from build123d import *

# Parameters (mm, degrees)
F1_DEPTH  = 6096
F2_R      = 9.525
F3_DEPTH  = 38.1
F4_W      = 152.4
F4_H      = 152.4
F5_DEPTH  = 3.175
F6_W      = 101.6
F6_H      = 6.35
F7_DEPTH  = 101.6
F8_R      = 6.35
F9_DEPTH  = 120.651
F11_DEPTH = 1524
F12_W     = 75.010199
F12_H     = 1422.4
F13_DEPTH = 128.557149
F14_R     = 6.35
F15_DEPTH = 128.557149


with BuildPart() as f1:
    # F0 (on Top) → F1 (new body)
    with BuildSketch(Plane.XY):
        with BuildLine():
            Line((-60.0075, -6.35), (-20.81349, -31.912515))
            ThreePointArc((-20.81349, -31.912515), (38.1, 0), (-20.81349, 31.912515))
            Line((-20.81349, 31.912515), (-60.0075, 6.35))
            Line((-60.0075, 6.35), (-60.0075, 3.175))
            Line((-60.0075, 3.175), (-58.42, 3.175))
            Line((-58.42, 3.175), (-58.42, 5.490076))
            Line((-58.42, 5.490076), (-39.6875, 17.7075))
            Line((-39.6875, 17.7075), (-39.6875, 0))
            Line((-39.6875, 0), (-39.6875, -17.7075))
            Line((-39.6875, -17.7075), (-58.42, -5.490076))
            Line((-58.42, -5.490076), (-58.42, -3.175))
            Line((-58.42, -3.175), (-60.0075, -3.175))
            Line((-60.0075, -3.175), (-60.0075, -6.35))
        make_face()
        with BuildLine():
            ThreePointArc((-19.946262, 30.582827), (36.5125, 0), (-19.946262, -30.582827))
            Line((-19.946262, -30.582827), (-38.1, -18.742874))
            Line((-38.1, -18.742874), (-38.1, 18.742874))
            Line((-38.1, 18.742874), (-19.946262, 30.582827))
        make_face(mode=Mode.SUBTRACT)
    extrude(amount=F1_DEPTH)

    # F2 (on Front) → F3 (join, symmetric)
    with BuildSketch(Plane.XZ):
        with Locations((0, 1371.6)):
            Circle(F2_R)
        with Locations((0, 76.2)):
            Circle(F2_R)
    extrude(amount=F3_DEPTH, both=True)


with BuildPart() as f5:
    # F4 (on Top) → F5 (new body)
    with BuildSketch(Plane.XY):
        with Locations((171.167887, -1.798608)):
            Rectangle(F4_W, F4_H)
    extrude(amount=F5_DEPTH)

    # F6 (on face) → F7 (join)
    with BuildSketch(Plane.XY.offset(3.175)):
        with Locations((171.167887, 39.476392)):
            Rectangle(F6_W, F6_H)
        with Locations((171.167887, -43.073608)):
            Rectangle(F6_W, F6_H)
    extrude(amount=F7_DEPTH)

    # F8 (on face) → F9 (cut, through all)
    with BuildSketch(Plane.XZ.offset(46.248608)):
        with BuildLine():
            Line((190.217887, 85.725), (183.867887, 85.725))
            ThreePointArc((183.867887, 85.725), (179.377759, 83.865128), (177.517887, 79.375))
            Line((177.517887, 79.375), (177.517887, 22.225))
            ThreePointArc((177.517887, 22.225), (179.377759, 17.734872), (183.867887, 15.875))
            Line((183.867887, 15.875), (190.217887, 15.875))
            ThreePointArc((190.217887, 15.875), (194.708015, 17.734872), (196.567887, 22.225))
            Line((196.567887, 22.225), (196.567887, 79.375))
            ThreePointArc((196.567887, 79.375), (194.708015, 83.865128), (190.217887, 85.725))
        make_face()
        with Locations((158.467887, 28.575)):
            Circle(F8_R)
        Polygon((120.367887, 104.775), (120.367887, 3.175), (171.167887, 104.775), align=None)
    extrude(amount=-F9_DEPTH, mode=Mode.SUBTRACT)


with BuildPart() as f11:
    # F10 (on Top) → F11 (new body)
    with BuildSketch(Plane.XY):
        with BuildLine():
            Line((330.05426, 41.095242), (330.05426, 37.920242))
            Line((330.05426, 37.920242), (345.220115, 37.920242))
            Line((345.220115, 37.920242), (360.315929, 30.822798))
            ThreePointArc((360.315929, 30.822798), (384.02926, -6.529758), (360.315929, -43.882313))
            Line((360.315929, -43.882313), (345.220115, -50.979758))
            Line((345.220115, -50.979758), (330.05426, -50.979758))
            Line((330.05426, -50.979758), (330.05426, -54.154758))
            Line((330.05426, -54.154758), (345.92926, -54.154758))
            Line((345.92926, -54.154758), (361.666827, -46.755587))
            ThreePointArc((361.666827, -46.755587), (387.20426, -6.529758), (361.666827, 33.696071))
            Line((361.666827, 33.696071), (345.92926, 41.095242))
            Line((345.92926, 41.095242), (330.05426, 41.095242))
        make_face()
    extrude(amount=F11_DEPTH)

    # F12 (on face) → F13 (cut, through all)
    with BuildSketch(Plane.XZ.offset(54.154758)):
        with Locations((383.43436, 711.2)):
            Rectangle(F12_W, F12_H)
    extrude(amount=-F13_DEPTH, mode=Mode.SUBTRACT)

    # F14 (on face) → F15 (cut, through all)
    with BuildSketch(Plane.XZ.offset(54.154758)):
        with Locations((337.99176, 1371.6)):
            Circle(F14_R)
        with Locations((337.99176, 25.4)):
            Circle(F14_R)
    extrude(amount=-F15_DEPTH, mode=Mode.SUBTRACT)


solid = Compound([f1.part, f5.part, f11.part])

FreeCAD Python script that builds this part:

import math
import FreeCAD as App
import Part
import Sketcher

V = App.Vector
Q = App.Units.Quantity

doc = App.newDocument("Part")
body = doc.addObject("PartDesign::Body", "Body")

# Sketch on XY plane
sketch1 = doc.addObject("Sketcher::SketchObject", "Sketch")
body.addObject(sketch1)
sketch1.AttachmentSupport = (doc.XY_Plane, [""])
sketch1.MapMode = "FlatFace"
sketch1.addGeometry([
    Part.LineSegment(V(-60, -6.3, 0), V(-20.8, -31.9, 0)),  # 0
    Part.ArcOfCircle(Part.Circle(V(0, 0, 0), V(0, 0, 1), 38.1), math.radians(-123), math.radians(123)),  # 1
    Part.LineSegment(V(-20.8, 31.9, 0), V(-60, 6.3, 0)),  # 2
    Part.LineSegment(V(-60, 6.3, 0), V(-60, 3.2, 0)),  # 3
    Part.LineSegment(V(-60, 3.2, 0), V(-58.4, 3.2, 0)),  # 4
    Part.LineSegment(V(-58.4, 3.2, 0), V(-58.4, 5.5, 0)),  # 5
    Part.LineSegment(V(-58.4, 5.5, 0), V(-39.7, 17.7, 0)),  # 6
    Part.LineSegment(V(-39.7, 17.7, 0), V(-39.7, -17.7, 0)),  # 7
    Part.LineSegment(V(-39.7, -17.7, 0), V(-58.4, -5.5, 0)),  # 8
    Part.LineSegment(V(-58.4, -5.5, 0), V(-58.4, -3.2, 0)),  # 9
    Part.LineSegment(V(-58.4, -3.2, 0), V(-60, -3.2, 0)),  # 10
    Part.LineSegment(V(-60, -3.2, 0), V(-60, -6.3, 0)),  # 11
    Part.LineSegment(V(-38.1, 18.7, 0), V(-19.9, 30.6, 0)),  # 12
    Part.ArcOfCircle(Part.Circle(V(0, 0, 0), V(0, 0, 1), 36.5), math.radians(-123), math.radians(123)),  # 13
    Part.LineSegment(V(-19.9, -30.6, 0), V(-38.1, -18.7, 0)),  # 14
    Part.LineSegment(V(-38.1, -18.7, 0), V(-38.1, 18.7, 0)),  # 15
], False)
sketch1.addConstraint([
    Sketcher.Constraint("Tangent", 0, 2, 1, 1),
    Sketcher.Constraint("Tangent", 1, 2, 2, 1),
    Sketcher.Constraint("Coincident", 2, 2, 3, 1),
    Sketcher.Constraint("Coincident", 3, 2, 4, 1),
    Sketcher.Constraint("Coincident", 4, 2, 5, 1),
    Sketcher.Constraint("Coincident", 5, 2, 6, 1),
    Sketcher.Constraint("Coincident", 6, 2, 7, 1),
    Sketcher.Constraint("Coincident", 7, 2, 8, 1),
    Sketcher.Constraint("Coincident", 8, 2, 9, 1),
    Sketcher.Constraint("Coincident", 9, 2, 10, 1),
    Sketcher.Constraint("Coincident", 10, 2, 11, 1),
    Sketcher.Constraint("Coincident", 11, 2, 0, 1),
    Sketcher.Constraint("Tangent", 12, 2, 13, 2),
    Sketcher.Constraint("Tangent", 13, 1, 14, 1),
    Sketcher.Constraint("Coincident", 14, 2, 15, 1),
    Sketcher.Constraint("Coincident", 15, 2, 12, 1),
    Sketcher.Constraint("Vertical", 3),
    Sketcher.Constraint("Horizontal", 4),
    Sketcher.Constraint("Vertical", 5),
    Sketcher.Constraint("Vertical", 7),
    Sketcher.Constraint("Vertical", 9),
    Sketcher.Constraint("Horizontal", 10),
    Sketcher.Constraint("Vertical", 11),
    Sketcher.Constraint("Vertical", 15),
    Sketcher.Constraint("Coincident", 1, 3, -1, 1),
    Sketcher.Constraint("Coincident", 13, 3, -1, 1),
    Sketcher.Constraint("Symmetric", 5, 2, 8, 2, -1),
    Sketcher.Constraint("Symmetric", 3, 2, 10, 2, -1),
    Sketcher.Constraint("Parallel", 2, 6),
    Sketcher.Constraint("Parallel", 0, 8),
    Sketcher.Constraint("Parallel", 6, 12),
    Sketcher.Constraint("Parallel", 8, 14),
    Sketcher.Constraint("Vertical", 0, 2, 1, 2),
    Sketcher.Constraint("Radius", 1, Q("1.5 in")),
    Sketcher.Constraint("Radius", 13, Q("1.4375 in")),
    Sketcher.Constraint("DistanceX", 4, 2, -1, 1, Q("2.3 in")),
    Sketcher.Constraint("DistanceX", 14, 2, -1, 1, Q("1.5 in")),
    Sketcher.Constraint("DistanceX", 2, 2, 6, 2, Q("0.8 in")),
    Sketcher.Constraint("DistanceX", 4, 1, 4, 2, Q("0.0625 in")),
    Sketcher.Constraint("DistanceY", 3, 2, 3, 1, Q("0.125 in")),
    Sketcher.Constraint("DistanceY", -1, 1, 2, 2, Q("0.25 in")),
    Sketcher.Constraint("DistanceY", 7, 2, 7, 1, 35.415),
])
pad1 = doc.addObject("PartDesign::Pad", "Pad")
body.addObject(pad1)
pad1.Profile = sketch1
pad1.Length = Q("240 in")

# Sketch on XZ plane
sketch2 = doc.addObject("Sketcher::SketchObject", "Sketch001")
body.addObject(sketch2)
sketch2.AttachmentSupport = (doc.XZ_Plane, [""])
sketch2.MapMode = "FlatFace"
sketch2.addGeometry([
    Part.Circle(V(0, 1372, 0), V(0, 0, 1), 10),
    Part.Circle(V(0, 76, 0), V(0, 0, 1), 10),
], False)
sketch2.addConstraint([
    Sketcher.Constraint("Equal", 0, 1),
    Sketcher.Constraint("PointOnObject", 0, 3, -2),
    Sketcher.Constraint("PointOnObject", 1, 3, -2),
    Sketcher.Constraint("Diameter", 0, Q("0.75 in")),
    Sketcher.Constraint("DistanceY", -1, 1, 0, 3, Q("54 in")),
    Sketcher.Constraint("DistanceY", -1, 1, 1, 3, Q("3 in")),
])
pad2 = doc.addObject("PartDesign::Pad", "Pad001")
body.addObject(pad2)
pad2.Profile = sketch2
pad2.Length = Q("3 in")
pad2.Midplane = True
body2 = doc.addObject("PartDesign::Body", "Body001")

# Sketch on XY plane
sketch3 = doc.addObject("Sketcher::SketchObject", "Sketch002")
body2.addObject(sketch3)
sketch3.AttachmentSupport = (doc.getObject("XY_Plane001"), [""])
sketch3.MapMode = "FlatFace"
sketch3.addGeometry([
    Part.LineSegment(V(95, 74, 0), V(95, -78, 0)),
    Part.LineSegment(V(95, -78, 0), V(247, -78, 0)),
    Part.LineSegment(V(247, -78, 0), V(247, 74, 0)),
    Part.LineSegment(V(247, 74, 0), V(95, 74, 0)),
], False)
sketch3.addConstraint([
    Sketcher.Constraint("Coincident", 0, 2, 1, 1),
    Sketcher.Constraint("Coincident", 1, 2, 2, 1),
    Sketcher.Constraint("Coincident", 2, 2, 3, 1),
    Sketcher.Constraint("Coincident", 3, 2, 0, 1),
    Sketcher.Constraint("Vertical", 0),
    Sketcher.Constraint("Horizontal", 1),
    Sketcher.Constraint("Vertical", 2),
    Sketcher.Constraint("Horizontal", 3),
    Sketcher.Constraint("Equal", 3, 0),
    Sketcher.Constraint("DistanceX", 1, 1, 1, 2, Q("6 in")),
    Sketcher.Constraint("DistanceY", 0, 2, -1, 1, 77.998608),
    Sketcher.Constraint("DistanceX", -1, 1, 0, 2, 94.967887),
])
pad3 = doc.addObject("PartDesign::Pad", "Pad002")
body2.addObject(pad3)
pad3.Profile = sketch3
pad3.Length = Q("0.125 in")

# Sketch on XY plane
sketch4 = doc.addObject("Sketcher::SketchObject", "Sketch003")
body2.addObject(sketch4)
sketch4.AttachmentSupport = (doc.getObject("XY_Plane001"), [""])
sketch4.MapMode = "FlatFace"
sketch4.AttachmentOffset = App.Placement(V(0, 0, 0.125 * 25.4), App.Rotation())
sketch4.addGeometry([
    Part.LineSegment(V(120, 43, 0), V(120, 36, 0)),  # 0
    Part.LineSegment(V(120, 36, 0), V(222, 36, 0)),  # 1
    Part.LineSegment(V(222, 36, 0), V(222, 43, 0)),  # 2
    Part.LineSegment(V(222, 43, 0), V(120, 43, 0)),  # 3
    Part.LineSegment(V(120, -40, 0), V(120, -46, 0)),  # 4
    Part.LineSegment(V(120, -46, 0), V(222, -46, 0)),  # 5
    Part.LineSegment(V(222, -46, 0), V(222, -40, 0)),  # 6
    Part.LineSegment(V(222, -40, 0), V(120, -40, 0)),  # 7
], False)
sketch4.addConstraint([
    Sketcher.Constraint("Coincident", 0, 2, 1, 1),
    Sketcher.Constraint("Coincident", 1, 2, 2, 1),
    Sketcher.Constraint("Coincident", 2, 2, 3, 1),
    Sketcher.Constraint("Coincident", 3, 2, 0, 1),
    Sketcher.Constraint("Coincident", 4, 2, 5, 1),
    Sketcher.Constraint("Coincident", 5, 2, 6, 1),
    Sketcher.Constraint("Coincident", 6, 2, 7, 1),
    Sketcher.Constraint("Coincident", 7, 2, 4, 1),
    Sketcher.Constraint("Vertical", 0),
    Sketcher.Constraint("Horizontal", 1),
    Sketcher.Constraint("Vertical", 2),
    Sketcher.Constraint("Horizontal", 3),
    Sketcher.Constraint("Vertical", 4),
    Sketcher.Constraint("Horizontal", 5),
    Sketcher.Constraint("Vertical", 6),
    Sketcher.Constraint("Horizontal", 7),
    Sketcher.Constraint("Vertical", 3, 2, 4, 2),
    Sketcher.Constraint("Vertical", 2, 2, 5, 2),
    Sketcher.Constraint("Equal", 2, 4),
    Sketcher.Constraint("DistanceX", 1, 1, 1, 2, Q("4 in")),
    Sketcher.Constraint("DistanceY", 6, 2, 1, 2, Q("3 in")),
    Sketcher.Constraint("DistanceY", 0, 2, 0, 1, Q("0.25 in")),
    Sketcher.Constraint("DistanceY", 6, 2, -1, 1, 39.898608),
    Sketcher.Constraint("DistanceX", -1, 1, 0, 2, 120.367887),
])
pad4 = doc.addObject("PartDesign::Pad", "Pad003")
body2.addObject(pad4)
pad4.Profile = sketch4
pad4.Length = Q("4 in")

# Sketch on XZ plane
sketch5 = doc.addObject("Sketcher::SketchObject", "Sketch004")
body2.addObject(sketch5)
sketch5.AttachmentSupport = (doc.getObject("XZ_Plane001"), [""])
sketch5.MapMode = "FlatFace"
sketch5.AttachmentOffset = App.Placement(V(0, 0, 46.248608), App.Rotation())
sketch5.addGeometry([
    Part.LineSegment(V(190, 86, 0), V(184, 86, 0)),  # 0
    Part.ArcOfCircle(Part.Circle(V(184, 79, 0), V(0, 0, 1), 6), math.radians(90), math.radians(180)),  # 1
    Part.LineSegment(V(178, 79, 0), V(178, 22, 0)),  # 2
    Part.ArcOfCircle(Part.Circle(V(184, 22, 0), V(0, 0, 1), 6), math.radians(-180), math.radians(-90)),  # 3
    Part.LineSegment(V(184, 16, 0), V(190, 16, 0)),  # 4
    Part.ArcOfCircle(Part.Circle(V(190, 22, 0), V(0, 0, 1), 6), math.radians(-90), math.radians(0)),  # 5
    Part.LineSegment(V(197, 22, 0), V(197, 79, 0)),  # 6
    Part.ArcOfCircle(Part.Circle(V(190, 79, 0), V(0, 0, 1), 6), math.radians(0), math.radians(90)),  # 7
    Part.Circle(V(158, 29, 0), V(0, 0, 1), 6),  # 8
    Part.LineSegment(V(120, 105, 0), V(120, 3, 0)),  # 9
    Part.LineSegment(V(120, 3, 0), V(171, 105, 0)),  # 10
    Part.LineSegment(V(171, 105, 0), V(120, 105, 0)),  # 11
], False)
sketch5.addConstraint([
    Sketcher.Constraint("Tangent", 0, 2, 1, 1),
    Sketcher.Constraint("Tangent", 1, 2, 2, 1),
    Sketcher.Constraint("Tangent", 2, 2, 3, 1),
    Sketcher.Constraint("Tangent", 3, 2, 4, 1),
    Sketcher.Constraint("Tangent", 4, 2, 5, 1),
    Sketcher.Constraint("Tangent", 5, 2, 6, 1),
    Sketcher.Constraint("Tangent", 6, 2, 7, 1),
    Sketcher.Constraint("Tangent", 7, 2, 0, 1),
    Sketcher.Constraint("Coincident", 9, 2, 10, 1),
    Sketcher.Constraint("Coincident", 10, 2, 11, 1),
    Sketcher.Constraint("Coincident", 11, 2, 9, 1),
    Sketcher.Constraint("Horizontal", 0),
    Sketcher.Constraint("Vertical", 2),
    Sketcher.Constraint("Horizontal", 4),
    Sketcher.Constraint("Vertical", 6),
    Sketcher.Constraint("Vertical", 9),
    Sketcher.Constraint("Horizontal", 11),
    Sketcher.Constraint("Equal", 1, 3),
    Sketcher.Constraint("Equal", 3, 5),
    Sketcher.Constraint("Equal", 5, 7),
    Sketcher.Constraint("Equal", 7, 8),
    Sketcher.Constraint("Diameter", 8, Q("0.5 in")),
    Sketcher.Constraint("DistanceX", 11, 2, 11, 1, Q("2 in")),
    Sketcher.Constraint("DistanceY", 9, 2, 9, 1, Q("4 in")),
    Sketcher.Constraint("DistanceX", 8, 3, 3, 3, Q("1 in")),
    Sketcher.Constraint("DistanceY", 8, 3, 1, 3, Q("2 in")),
    Sketcher.Constraint("DistanceY", 9, 2, 8, 3, Q("1 in")),
    Sketcher.Constraint("DistanceX", 0, 2, 0, 1, Q("0.25 in")),
    Sketcher.Constraint("DistanceY", 2, 2, 2, 1, Q("2.25 in")),
    Sketcher.Constraint("DistanceX", 9, 2, 8, 3, Q("1.5 in")),
    Sketcher.Constraint("DistanceY", -1, 1, 1, 3, Q("3.125 in")),
    Sketcher.Constraint("DistanceX", -1, 1, 1, 3, 183.867887),
])
pocket1 = doc.addObject("PartDesign::Pocket", "Pocket")
body2.addObject(pocket1)
pocket1.Profile = sketch5
pocket1.Type = "ThroughAll"
body3 = doc.addObject("PartDesign::Body", "Body002")

# Sketch on XY plane
sketch6 = doc.addObject("Sketcher::SketchObject", "Sketch005")
body3.addObject(sketch6)
sketch6.AttachmentSupport = (doc.getObject("XY_Plane002"), [""])
sketch6.MapMode = "FlatFace"
sketch6.addGeometry([
    Part.LineSegment(V(330.1, 41.1, 0), V(330.1, 37.9, 0)),  # 0
    Part.LineSegment(V(330.1, 37.9, 0), V(345.2, 37.9, 0)),  # 1
    Part.LineSegment(V(345.2, 37.9, 0), V(360.3, 30.8, 0)),  # 2
    Part.ArcOfCircle(Part.Circle(V(342.8, -6.5, 0), V(0, 0, 1), 41.3), math.radians(-65), math.radians(65)),  # 3
    Part.LineSegment(V(360.3, -43.9, 0), V(345.2, -51, 0)),  # 4
    Part.LineSegment(V(345.2, -51, 0), V(330.1, -51, 0)),  # 5
    Part.LineSegment(V(330.1, -51, 0), V(330.1, -54.2, 0)),  # 6
    Part.LineSegment(V(330.1, -54.2, 0), V(345.9, -54.2, 0)),  # 7
    Part.LineSegment(V(345.9, -54.2, 0), V(361.7, -46.8, 0)),  # 8
    Part.ArcOfCircle(Part.Circle(V(342.8, -6.5, 0), V(0, 0, 1), 44.5), math.radians(-65), math.radians(65)),  # 9
    Part.LineSegment(V(361.7, 33.7, 0), V(345.9, 41.1, 0)),  # 10
    Part.LineSegment(V(345.9, 41.1, 0), V(330.1, 41.1, 0)),  # 11
], False)
sketch6.addConstraint([
    Sketcher.Constraint("Coincident", 0, 2, 1, 1),
    Sketcher.Constraint("Coincident", 1, 2, 2, 1),
    Sketcher.Constraint("Tangent", 2, 2, 3, 2),
    Sketcher.Constraint("Tangent", 3, 1, 4, 1),
    Sketcher.Constraint("Coincident", 4, 2, 5, 1),
    Sketcher.Constraint("Coincident", 5, 2, 6, 1),
    Sketcher.Constraint("Coincident", 6, 2, 7, 1),
    Sketcher.Constraint("Coincident", 7, 2, 8, 1),
    Sketcher.Constraint("Tangent", 8, 2, 9, 1),
    Sketcher.Constraint("Tangent", 9, 2, 10, 1),
    Sketcher.Constraint("Coincident", 10, 2, 11, 1),
    Sketcher.Constraint("Coincident", 11, 2, 0, 1),
    Sketcher.Constraint("Vertical", 0),
    Sketcher.Constraint("Horizontal", 1),
    Sketcher.Constraint("Horizontal", 5),
    Sketcher.Constraint("Vertical", 6),
    Sketcher.Constraint("Horizontal", 7),
    Sketcher.Constraint("Horizontal", 11),
    Sketcher.Constraint("Coincident", 9, 3, 3, 3),
    Sketcher.Constraint("Parallel", 4, 8),
    Sketcher.Constraint("Parallel", 2, 10),
    Sketcher.Constraint("Vertical", 2, 2, 3, 1),
    Sketcher.Constraint("Vertical", 1, 2, 4, 2),
    Sketcher.Constraint("Vertical", 0, 2, 5, 2),
    Sketcher.Constraint("Vertical", 7, 2, 10, 2),
    Sketcher.Constraint("Radius", 9, Q("1.75 in")),
    Sketcher.Constraint("Radius", 3, Q("1.625 in")),
    Sketcher.Constraint("DistanceX", 0, 2, 3, 3, Q("0.5 in")),
    Sketcher.Constraint("DistanceY", 4, 2, 1, 2, Q("3.5 in")),
    Sketcher.Constraint("DistanceX", 7, 1, 7, 2, Q("0.625 in")),
    Sketcher.Constraint("DistanceY", 0, 2, 0, 1, Q("0.125 in")),
    Sketcher.Constraint("DistanceX", -1, 1, 3, 3, 342.75426),
    Sketcher.Constraint("DistanceY", 9, 3, -1, 1, 6.529758),
])
pad5 = doc.addObject("PartDesign::Pad", "Pad004")
body3.addObject(pad5)
pad5.Profile = sketch6
pad5.Length = Q("60 in")

# Sketch on XZ plane
sketch7 = doc.addObject("Sketcher::SketchObject", "Sketch006")
body3.addObject(sketch7)
sketch7.AttachmentSupport = (doc.getObject("XZ_Plane002"), [""])
sketch7.MapMode = "FlatFace"
sketch7.AttachmentOffset = App.Placement(V(0, 0, 54.154758), App.Rotation())
sketch7.addGeometry([
    Part.LineSegment(V(346, 1422, 0), V(346, 0, 0)),
    Part.LineSegment(V(346, 0, 0), V(421, 0, 0)),
    Part.LineSegment(V(421, 0, 0), V(421, 1422, 0)),
    Part.LineSegment(V(421, 1422, 0), V(346, 1422, 0)),
], False)
sketch7.addConstraint([
    Sketcher.Constraint("Coincident", 0, 2, 1, 1),
    Sketcher.Constraint("Coincident", 1, 2, 2, 1),
    Sketcher.Constraint("Coincident", 2, 2, 3, 1),
    Sketcher.Constraint("Coincident", 3, 2, 0, 1),
    Sketcher.Constraint("Vertical", 0),
    Sketcher.Constraint("Horizontal", 1),
    Sketcher.Constraint("Vertical", 2),
    Sketcher.Constraint("Horizontal", 3),
    Sketcher.Constraint("PointOnObject", 0, 2, -1),
    Sketcher.Constraint("DistanceY", 0, 2, 0, 1, Q("56 in")),
    Sketcher.Constraint("DistanceX", 1, 1, 1, 2, 75.010199),
    Sketcher.Constraint("DistanceX", -1, 1, 0, 2, 345.92926),
])
pocket2 = doc.addObject("PartDesign::Pocket", "Pocket001")
body3.addObject(pocket2)
pocket2.Profile = sketch7
pocket2.Type = "ThroughAll"

# Sketch on XZ plane
sketch8 = doc.addObject("Sketcher::SketchObject", "Sketch007")
body3.addObject(sketch8)
sketch8.AttachmentSupport = (doc.getObject("XZ_Plane002"), [""])
sketch8.MapMode = "FlatFace"
sketch8.AttachmentOffset = App.Placement(V(0, 0, 54.154758), App.Rotation())
sketch8.addGeometry([
    Part.Circle(V(338, 1372, 0), V(0, 0, 1), 6),
    Part.Circle(V(338, 25, 0), V(0, 0, 1), 6),
], False)
sketch8.addConstraint([
    Sketcher.Constraint("Equal", 0, 1),
    Sketcher.Constraint("Vertical", 0, 3, 1, 3),
    Sketcher.Constraint("Diameter", 0, Q("0.5 in")),
    Sketcher.Constraint("DistanceY", -1, 1, 0, 3, Q("54 in")),
    Sketcher.Constraint("DistanceY", -1, 1, 1, 3, Q("1 in")),
    Sketcher.Constraint("DistanceX", -1, 1, 0, 3, 337.99176),
])
pocket3 = doc.addObject("PartDesign::Pocket", "Pocket002")
body3.addObject(pocket3)
pocket3.Profile = sketch8
pocket3.Type = "ThroughAll"

doc.recompute()
